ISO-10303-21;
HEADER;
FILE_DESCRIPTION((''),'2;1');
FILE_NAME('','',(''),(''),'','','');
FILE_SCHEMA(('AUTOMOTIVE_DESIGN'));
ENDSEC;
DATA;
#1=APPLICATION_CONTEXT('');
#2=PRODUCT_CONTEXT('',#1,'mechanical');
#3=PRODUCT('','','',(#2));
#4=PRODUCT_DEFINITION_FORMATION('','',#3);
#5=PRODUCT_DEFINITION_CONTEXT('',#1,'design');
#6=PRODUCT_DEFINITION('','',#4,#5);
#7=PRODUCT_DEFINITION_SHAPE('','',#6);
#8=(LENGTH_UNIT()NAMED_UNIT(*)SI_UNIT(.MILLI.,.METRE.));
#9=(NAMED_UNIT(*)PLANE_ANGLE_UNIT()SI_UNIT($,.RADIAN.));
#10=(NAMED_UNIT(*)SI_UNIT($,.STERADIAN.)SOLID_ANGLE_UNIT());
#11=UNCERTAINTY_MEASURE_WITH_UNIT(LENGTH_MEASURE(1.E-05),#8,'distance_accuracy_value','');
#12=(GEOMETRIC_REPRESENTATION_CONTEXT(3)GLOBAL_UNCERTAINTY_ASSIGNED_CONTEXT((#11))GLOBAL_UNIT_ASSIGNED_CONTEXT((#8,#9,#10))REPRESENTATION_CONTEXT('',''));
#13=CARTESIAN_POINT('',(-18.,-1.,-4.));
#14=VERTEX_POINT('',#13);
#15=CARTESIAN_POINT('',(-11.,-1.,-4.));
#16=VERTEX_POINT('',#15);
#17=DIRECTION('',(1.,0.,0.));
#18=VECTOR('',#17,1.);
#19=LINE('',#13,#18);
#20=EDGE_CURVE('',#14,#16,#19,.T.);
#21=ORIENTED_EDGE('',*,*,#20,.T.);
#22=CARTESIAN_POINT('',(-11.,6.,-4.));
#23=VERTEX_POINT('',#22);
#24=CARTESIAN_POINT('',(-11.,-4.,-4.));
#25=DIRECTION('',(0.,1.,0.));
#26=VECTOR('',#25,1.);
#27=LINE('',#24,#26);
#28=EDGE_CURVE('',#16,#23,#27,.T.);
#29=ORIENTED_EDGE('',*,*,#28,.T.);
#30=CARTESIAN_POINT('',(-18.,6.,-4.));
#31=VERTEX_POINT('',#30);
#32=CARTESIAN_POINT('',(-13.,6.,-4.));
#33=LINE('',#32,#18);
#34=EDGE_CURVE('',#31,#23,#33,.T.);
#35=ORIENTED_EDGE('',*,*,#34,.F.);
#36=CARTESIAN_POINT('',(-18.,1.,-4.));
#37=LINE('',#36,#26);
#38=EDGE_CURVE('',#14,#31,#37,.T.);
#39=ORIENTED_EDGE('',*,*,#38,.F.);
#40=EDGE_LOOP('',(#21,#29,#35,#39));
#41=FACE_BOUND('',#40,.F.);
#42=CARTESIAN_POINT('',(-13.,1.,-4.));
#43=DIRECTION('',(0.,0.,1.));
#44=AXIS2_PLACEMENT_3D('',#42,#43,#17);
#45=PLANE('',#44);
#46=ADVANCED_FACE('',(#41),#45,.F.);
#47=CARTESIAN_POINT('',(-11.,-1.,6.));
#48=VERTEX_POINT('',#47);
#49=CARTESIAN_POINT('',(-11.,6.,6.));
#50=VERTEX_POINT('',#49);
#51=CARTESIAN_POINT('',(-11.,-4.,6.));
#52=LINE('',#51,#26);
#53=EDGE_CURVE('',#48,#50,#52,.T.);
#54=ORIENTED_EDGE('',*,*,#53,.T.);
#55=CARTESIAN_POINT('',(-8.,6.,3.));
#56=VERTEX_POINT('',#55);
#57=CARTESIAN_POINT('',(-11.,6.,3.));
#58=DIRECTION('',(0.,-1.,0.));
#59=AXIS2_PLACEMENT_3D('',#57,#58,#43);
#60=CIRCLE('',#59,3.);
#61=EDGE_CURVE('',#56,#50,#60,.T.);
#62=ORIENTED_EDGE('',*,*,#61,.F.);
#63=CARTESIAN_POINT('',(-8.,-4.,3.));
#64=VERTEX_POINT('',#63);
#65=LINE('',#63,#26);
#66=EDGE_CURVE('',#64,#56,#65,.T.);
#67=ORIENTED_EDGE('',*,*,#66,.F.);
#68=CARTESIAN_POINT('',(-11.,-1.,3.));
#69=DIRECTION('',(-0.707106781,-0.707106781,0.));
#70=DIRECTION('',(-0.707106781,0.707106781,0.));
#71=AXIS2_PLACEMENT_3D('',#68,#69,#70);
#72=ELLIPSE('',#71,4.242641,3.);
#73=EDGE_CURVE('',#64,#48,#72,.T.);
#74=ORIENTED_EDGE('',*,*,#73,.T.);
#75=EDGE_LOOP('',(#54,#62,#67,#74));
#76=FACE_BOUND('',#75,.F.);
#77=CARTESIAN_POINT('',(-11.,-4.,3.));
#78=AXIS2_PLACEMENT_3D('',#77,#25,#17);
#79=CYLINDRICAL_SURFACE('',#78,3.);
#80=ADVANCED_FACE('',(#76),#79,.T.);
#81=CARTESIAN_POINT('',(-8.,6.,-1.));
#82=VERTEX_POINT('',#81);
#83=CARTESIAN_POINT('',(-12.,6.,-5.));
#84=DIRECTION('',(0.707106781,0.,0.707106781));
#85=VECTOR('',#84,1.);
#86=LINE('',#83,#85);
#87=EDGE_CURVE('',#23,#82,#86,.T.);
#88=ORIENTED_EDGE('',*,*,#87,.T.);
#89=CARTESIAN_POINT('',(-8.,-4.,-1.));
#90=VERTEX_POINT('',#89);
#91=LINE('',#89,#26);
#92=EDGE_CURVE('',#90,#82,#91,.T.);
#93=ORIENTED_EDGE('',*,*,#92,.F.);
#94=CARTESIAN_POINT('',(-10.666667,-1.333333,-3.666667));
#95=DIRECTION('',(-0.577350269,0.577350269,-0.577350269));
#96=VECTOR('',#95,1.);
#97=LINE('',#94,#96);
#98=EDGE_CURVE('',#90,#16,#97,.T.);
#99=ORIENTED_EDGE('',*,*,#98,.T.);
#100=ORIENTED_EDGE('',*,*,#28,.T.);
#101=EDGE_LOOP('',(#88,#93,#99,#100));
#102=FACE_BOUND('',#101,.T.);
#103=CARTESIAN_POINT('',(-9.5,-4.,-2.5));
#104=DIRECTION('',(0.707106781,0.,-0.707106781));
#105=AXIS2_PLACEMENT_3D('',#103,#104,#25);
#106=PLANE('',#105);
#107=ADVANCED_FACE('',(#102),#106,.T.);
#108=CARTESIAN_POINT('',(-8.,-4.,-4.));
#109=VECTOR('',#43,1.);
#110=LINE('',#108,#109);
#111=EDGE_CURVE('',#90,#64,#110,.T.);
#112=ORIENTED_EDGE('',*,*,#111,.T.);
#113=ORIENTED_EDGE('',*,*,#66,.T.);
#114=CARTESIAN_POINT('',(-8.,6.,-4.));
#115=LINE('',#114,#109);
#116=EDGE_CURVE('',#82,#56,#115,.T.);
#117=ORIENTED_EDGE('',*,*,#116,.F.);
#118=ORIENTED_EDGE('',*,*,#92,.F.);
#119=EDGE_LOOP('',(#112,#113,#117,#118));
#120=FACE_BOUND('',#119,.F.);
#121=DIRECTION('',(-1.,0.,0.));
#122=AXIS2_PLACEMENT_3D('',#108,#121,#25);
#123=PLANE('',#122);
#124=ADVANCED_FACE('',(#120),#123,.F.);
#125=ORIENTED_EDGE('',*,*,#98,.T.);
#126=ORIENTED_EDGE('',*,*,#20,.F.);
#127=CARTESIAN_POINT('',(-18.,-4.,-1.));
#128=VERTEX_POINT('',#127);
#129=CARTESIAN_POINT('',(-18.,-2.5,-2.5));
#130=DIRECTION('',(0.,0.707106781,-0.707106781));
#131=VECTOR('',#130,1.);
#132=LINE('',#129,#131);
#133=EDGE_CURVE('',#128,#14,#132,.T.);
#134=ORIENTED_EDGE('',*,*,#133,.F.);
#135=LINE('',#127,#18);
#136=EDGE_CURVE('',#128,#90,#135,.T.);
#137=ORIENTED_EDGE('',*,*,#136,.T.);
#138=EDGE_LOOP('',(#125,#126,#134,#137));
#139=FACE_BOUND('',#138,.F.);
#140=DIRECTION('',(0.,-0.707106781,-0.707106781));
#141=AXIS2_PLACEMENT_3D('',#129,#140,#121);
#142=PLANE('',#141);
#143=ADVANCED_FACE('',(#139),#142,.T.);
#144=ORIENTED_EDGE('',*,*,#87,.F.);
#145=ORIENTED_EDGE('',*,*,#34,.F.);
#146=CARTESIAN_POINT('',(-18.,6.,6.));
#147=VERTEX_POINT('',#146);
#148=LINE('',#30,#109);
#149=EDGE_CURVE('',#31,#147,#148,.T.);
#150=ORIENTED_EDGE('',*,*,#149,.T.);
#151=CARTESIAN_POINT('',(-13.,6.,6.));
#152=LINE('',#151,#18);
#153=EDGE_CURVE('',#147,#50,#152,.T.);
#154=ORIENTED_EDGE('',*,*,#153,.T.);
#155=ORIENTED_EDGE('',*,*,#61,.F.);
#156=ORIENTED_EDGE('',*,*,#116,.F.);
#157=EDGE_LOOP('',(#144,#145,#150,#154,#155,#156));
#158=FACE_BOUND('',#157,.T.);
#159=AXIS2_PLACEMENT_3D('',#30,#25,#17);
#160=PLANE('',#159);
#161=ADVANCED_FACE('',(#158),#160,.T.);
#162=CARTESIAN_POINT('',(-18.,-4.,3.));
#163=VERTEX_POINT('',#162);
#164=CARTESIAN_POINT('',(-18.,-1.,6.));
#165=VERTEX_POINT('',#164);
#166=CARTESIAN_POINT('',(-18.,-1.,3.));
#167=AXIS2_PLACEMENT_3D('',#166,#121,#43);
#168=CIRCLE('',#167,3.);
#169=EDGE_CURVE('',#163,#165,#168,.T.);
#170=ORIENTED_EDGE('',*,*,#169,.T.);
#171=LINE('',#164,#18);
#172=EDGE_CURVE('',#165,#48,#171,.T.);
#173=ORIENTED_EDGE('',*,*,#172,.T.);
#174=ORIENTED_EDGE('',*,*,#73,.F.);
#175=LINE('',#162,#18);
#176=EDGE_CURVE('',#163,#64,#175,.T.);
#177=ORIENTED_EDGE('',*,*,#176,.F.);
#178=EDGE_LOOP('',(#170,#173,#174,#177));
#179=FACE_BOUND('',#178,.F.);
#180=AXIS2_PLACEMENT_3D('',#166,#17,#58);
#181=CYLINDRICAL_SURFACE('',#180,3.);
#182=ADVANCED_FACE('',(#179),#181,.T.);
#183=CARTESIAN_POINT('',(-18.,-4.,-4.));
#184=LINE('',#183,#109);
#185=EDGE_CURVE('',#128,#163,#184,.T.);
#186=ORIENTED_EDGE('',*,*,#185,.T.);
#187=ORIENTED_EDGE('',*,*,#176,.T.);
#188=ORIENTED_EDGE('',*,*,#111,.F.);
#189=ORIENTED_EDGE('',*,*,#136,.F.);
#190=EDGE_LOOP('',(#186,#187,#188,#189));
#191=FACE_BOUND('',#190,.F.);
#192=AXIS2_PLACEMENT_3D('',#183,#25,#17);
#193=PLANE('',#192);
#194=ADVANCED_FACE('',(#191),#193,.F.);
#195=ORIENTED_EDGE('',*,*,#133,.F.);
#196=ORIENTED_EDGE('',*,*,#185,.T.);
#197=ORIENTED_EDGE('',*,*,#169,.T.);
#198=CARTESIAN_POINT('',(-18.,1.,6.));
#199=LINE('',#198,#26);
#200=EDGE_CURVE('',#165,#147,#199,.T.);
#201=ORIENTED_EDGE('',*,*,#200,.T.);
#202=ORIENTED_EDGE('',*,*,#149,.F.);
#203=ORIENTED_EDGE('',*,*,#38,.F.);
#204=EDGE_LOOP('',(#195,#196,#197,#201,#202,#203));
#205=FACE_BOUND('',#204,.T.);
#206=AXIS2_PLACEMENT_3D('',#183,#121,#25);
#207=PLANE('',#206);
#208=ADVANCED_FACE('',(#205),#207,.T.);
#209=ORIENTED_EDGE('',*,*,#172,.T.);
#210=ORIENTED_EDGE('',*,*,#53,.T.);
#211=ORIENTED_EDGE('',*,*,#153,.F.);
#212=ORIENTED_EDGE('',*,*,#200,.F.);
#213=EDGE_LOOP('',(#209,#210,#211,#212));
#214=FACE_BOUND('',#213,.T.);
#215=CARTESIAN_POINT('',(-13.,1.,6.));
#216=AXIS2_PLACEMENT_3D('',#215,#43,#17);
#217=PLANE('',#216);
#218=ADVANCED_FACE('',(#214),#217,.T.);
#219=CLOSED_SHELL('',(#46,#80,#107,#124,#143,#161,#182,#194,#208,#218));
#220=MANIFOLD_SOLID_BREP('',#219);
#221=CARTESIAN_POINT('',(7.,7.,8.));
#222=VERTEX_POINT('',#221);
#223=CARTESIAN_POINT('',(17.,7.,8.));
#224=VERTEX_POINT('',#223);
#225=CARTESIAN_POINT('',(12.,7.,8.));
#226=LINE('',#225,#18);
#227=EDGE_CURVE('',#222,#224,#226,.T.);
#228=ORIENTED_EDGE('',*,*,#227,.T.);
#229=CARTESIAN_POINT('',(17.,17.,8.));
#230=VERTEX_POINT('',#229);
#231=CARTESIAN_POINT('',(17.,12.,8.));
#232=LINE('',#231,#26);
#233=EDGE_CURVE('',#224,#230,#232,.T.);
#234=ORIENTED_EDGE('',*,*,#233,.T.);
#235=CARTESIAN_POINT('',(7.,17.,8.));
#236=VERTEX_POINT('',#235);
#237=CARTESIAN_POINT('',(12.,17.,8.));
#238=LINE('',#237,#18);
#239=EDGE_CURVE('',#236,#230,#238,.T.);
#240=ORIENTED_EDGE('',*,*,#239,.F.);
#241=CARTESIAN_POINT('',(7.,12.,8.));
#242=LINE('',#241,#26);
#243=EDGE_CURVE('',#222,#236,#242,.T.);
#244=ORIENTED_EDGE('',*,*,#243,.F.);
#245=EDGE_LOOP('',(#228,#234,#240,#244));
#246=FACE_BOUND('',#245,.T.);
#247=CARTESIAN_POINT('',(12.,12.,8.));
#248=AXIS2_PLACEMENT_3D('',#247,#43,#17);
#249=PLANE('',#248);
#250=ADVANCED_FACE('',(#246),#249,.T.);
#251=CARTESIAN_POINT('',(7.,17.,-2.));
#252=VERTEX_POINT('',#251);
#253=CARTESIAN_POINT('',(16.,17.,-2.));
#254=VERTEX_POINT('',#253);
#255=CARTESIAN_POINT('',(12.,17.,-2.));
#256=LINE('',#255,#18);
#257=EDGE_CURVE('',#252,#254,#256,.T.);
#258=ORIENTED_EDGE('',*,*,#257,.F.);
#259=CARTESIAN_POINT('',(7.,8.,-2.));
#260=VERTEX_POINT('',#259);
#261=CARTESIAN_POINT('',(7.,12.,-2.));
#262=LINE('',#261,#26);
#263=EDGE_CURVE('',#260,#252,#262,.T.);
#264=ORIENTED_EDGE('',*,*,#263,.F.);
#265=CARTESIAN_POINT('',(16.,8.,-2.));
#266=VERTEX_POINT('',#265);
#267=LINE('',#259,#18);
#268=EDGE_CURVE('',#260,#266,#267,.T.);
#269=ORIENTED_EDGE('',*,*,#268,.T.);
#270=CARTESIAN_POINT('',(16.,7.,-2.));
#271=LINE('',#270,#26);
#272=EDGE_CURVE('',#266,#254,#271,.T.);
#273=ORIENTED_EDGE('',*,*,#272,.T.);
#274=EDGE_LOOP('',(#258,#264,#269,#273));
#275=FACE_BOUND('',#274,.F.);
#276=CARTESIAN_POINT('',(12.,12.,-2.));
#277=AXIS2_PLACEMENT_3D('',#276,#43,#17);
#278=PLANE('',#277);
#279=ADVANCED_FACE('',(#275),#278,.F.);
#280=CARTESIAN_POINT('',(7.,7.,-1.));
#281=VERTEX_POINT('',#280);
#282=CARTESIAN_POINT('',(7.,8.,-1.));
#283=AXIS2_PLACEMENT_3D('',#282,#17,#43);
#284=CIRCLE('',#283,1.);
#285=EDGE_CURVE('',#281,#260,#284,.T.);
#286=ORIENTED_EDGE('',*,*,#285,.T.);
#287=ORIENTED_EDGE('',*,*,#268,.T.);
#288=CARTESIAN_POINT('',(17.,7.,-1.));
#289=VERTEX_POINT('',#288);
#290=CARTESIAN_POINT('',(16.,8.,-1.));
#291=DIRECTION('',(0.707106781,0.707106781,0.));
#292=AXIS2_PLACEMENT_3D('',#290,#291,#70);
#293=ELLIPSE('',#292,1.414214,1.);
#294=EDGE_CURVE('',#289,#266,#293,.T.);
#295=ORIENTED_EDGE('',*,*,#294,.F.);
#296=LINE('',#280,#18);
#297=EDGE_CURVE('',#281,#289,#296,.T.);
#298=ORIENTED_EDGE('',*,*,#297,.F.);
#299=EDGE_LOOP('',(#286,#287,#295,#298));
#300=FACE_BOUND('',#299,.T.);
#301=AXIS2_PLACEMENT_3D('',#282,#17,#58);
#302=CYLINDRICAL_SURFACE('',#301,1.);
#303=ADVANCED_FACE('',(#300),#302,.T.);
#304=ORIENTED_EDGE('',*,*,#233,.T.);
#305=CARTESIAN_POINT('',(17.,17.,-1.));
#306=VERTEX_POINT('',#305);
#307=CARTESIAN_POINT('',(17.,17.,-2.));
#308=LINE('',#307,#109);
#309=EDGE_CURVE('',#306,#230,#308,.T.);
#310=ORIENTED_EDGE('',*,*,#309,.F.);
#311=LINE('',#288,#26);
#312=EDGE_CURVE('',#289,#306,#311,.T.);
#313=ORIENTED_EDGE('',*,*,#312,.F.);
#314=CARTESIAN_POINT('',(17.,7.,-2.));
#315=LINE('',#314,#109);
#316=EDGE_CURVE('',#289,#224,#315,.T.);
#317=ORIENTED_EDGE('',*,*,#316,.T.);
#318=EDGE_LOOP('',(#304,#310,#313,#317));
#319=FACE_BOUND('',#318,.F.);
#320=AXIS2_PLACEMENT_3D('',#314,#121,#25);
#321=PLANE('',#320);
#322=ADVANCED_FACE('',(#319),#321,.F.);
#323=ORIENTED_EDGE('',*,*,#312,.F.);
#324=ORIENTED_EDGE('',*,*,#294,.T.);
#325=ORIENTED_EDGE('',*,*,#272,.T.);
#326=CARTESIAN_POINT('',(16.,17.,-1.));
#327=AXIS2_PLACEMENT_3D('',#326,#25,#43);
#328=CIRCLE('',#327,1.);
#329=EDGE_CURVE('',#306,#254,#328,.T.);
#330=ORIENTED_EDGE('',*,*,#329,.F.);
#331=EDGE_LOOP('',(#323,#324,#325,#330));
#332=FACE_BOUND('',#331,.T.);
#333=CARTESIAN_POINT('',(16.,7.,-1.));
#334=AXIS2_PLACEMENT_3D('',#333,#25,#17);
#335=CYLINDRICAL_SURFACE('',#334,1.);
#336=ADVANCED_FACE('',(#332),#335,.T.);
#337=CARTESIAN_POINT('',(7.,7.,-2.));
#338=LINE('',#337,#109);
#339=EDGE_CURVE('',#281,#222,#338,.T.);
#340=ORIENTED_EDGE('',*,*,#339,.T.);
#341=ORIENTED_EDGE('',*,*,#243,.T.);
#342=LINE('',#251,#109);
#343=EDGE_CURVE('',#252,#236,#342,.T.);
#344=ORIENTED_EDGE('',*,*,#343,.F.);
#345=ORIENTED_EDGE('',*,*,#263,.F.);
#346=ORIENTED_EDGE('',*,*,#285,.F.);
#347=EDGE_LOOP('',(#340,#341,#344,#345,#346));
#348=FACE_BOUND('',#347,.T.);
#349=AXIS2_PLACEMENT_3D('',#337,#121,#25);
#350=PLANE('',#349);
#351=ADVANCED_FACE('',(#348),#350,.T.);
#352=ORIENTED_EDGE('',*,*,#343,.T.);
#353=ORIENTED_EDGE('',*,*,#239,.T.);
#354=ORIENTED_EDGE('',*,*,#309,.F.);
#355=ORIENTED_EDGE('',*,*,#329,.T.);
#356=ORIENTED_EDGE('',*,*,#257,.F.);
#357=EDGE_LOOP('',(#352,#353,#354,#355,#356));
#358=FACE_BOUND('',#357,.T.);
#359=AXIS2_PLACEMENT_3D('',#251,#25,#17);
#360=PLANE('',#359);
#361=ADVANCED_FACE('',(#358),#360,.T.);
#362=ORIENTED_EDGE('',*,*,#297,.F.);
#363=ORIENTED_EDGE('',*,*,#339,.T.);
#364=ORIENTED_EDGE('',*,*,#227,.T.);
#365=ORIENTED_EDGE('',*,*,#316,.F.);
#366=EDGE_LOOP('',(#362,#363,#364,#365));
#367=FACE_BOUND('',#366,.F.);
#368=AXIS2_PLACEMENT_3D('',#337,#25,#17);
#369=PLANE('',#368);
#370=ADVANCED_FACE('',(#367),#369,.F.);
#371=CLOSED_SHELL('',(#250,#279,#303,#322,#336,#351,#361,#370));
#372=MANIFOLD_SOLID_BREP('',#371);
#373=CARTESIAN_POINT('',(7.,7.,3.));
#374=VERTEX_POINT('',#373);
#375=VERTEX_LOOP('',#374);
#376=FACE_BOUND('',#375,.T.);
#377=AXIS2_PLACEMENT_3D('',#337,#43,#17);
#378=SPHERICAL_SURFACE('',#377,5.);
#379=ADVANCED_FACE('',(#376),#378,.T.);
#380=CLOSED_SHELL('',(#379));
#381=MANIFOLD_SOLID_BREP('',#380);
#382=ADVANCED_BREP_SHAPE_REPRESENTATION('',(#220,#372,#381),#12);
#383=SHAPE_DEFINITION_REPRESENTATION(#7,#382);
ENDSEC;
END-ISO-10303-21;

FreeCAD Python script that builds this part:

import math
import FreeCAD as App
import Part
import Sketcher
Q = App.Units.Quantity


def edges_at(feature, points):
    """Names of the edges that pass closest to the given points."""
    edges = feature.Shape.Edges
    near = lambda p: min(range(len(edges)), key=lambda i: edges[i].distToShape(Part.Vertex(*p))[0])
    return sorted({f"Edge{near(p) + 1}" for p in points})


def add_polygon(sketch, points):
    """Adds a closed chain of lines whose ends are joined by coincident constraints."""
    first, n = sketch.GeometryCount, len(points)
    for a, b in zip(points, points[1:] + points[:1]):
        sketch.addGeometry(Part.LineSegment(App.Vector(*a, 0), App.Vector(*b, 0)), False)
    for i in range(n):
        sketch.addConstraint(Sketcher.Constraint("Coincident", first + i, 2, first + (i + 1) % n, 1))

doc = App.newDocument("Part")
params = doc.addObject("Spreadsheet::Sheet", "Params")
for row, (alias, value) in enumerate([
    ("sketch1_radius", "5 mm"),
    ("revolution_angle", "360 deg"),
    ("sketch2_width", "10 mm"),
    ("pad1_length", "10 mm"),
    ("fillet_radius", "3 mm"),
    ("chamfer_size", "3 mm"),
    ("sketch3_width", "10 mm"),
    ("pad2_length", "10 mm"),
    ("fillet2_radius", "1 mm"),
], start=1):
    params.set(f"A{row}", alias)
    params.set(f"B{row}", "=" + value)
    params.setAlias(f"B{row}", alias)

body = doc.addObject("PartDesign::Body", "Body")

sketch1 = body.newObject("Sketcher::SketchObject", "Sketch")
sketch1.AttachmentSupport = (doc.getObject("XZ_Plane"), [""])
sketch1.MapMode = "FlatFace"
sketch1.AttachmentOffset = App.Placement(App.Vector(0, 0, -7), App.Rotation())
sketch1.addGeometry([
    Part.ArcOfCircle(Part.Circle(App.Vector(7, -2, 0), App.Vector(0, 0, 1), 5), math.radians(-90), math.radians(90)),
    Part.LineSegment(App.Vector(7, 3, 0), App.Vector(7, -7, 0)),
], False)
sketch1.addGeometry(Part.LineSegment(App.Vector(7, -7, 0), App.Vector(7, 3, 0)), True)
sketch1.addConstraint([
    Sketcher.Constraint("Coincident", 0, 1, 1, 2),
    Sketcher.Constraint("Coincident", 1, 1, 0, 2),
    Sketcher.Constraint("Vertical", 1),
    Sketcher.Constraint("Vertical", 2),
    Sketcher.Constraint("Coincident", 2, 1, 0, 1),
    Sketcher.Constraint("Equal", 1, 2),
    Sketcher.Constraint("Radius", 0, Q("5 mm")),
    Sketcher.Constraint("DistanceX", -1, 1, 0, 3, Q("7 mm")),
    Sketcher.Constraint("DistanceY", 0, 3, -1, 1, Q("2 mm")),
    Sketcher.Constraint("DistanceX", -1, 1, 0, 1, Q("7 mm")),
])
sketch1.setExpression("Constraints[6]", "Params.sketch1_radius")
revolution = body.newObject("PartDesign::Revolution", "Revolution")
revolution.Profile = sketch1
revolution.ReferenceAxis = (sketch1, ["Axis0"])
revolution.setExpression("Angle", "Params.revolution_angle")
body2 = doc.addObject("PartDesign::Body", "Body001")

sketch2 = body2.newObject("Sketcher::SketchObject", "Sketch001")
sketch2.AttachmentSupport = (doc.getObject("XY_Plane001"), [""])
sketch2.MapMode = "FlatFace"
sketch2.AttachmentOffset = App.Placement(App.Vector(0, 0, -4), App.Rotation())
add_polygon(sketch2, [(-18, 6), (-18, -4), (-8, -4), (-8, 6)])
sketch2.addConstraint([
    Sketcher.Constraint("Vertical", 0),
    Sketcher.Constraint("Horizontal", 1),
    Sketcher.Constraint("Vertical", 2),
    Sketcher.Constraint("Horizontal", 3),
    Sketcher.Constraint("Equal", 3, 0),
    Sketcher.Constraint("DistanceX", 1, 1, 1, 2, Q("10 mm")),
    Sketcher.Constraint("DistanceX", 0, 2, -1, 1, Q("18 mm")),
    Sketcher.Constraint("DistanceY", 0, 2, -1, 1, Q("4 mm")),
])
sketch2.setExpression("Constraints[9]", "Params.sketch2_width")
pad1 = body2.newObject("PartDesign::Pad", "Pad")
pad1.Profile = sketch2
pad1.setExpression("Length", "Params.pad1_length")
doc.recompute()

fillet = body2.newObject("PartDesign::Fillet", "Fillet")
fillet.Base = (pad1, edges_at(pad1, [(-8, 1, 6), (-13, -4, 6)]))
fillet.setExpression("Radius", "Params.fillet_radius")
doc.recompute()

chamfer = body2.newObject("PartDesign::Chamfer", "Chamfer")
chamfer.Base = (fillet, edges_at(fillet, [(-13, -4, -4), (-8, 1, -4)]))
chamfer.setExpression("Size", "Params.chamfer_size")
body3 = doc.addObject("PartDesign::Body", "Body002")

sketch3 = body3.newObject("Sketcher::SketchObject", "Sketch002")
sketch3.AttachmentSupport = (doc.getObject("XY_Plane002"), [""])
sketch3.MapMode = "FlatFace"
sketch3.AttachmentOffset = App.Placement(App.Vector(0, 0, -2), App.Rotation())
add_polygon(sketch3, [(7, 17), (7, 7), (17, 7), (17, 17)])
sketch3.addConstraint([
    Sketcher.Constraint("Vertical", 0),
    Sketcher.Constraint("Horizontal", 1),
    Sketcher.Constraint("Vertical", 2),
    Sketcher.Constraint("Horizontal", 3),
    Sketcher.Constraint("Equal", 3, 0),
    Sketcher.Constraint("DistanceX", 1, 1, 1, 2, Q("10 mm")),
    Sketcher.Constraint("DistanceX", -1, 1, 0, 2, Q("7 mm")),
    Sketcher.Constraint("DistanceY", -1, 1, 0, 2, Q("7 mm")),
])
sketch3.setExpression("Constraints[9]", "Params.sketch3_width")
pad2 = body3.newObject("PartDesign::Pad", "Pad001")
pad2.Profile = sketch3
pad2.setExpression("Length", "Params.pad2_length")
doc.recompute()

fillet2 = body3.newObject("PartDesign::Fillet", "Fillet001")
fillet2.Base = (pad2, edges_at(pad2, [(17, 12, -2), (12, 7, -2)]))
fillet2.setExpression("Radius", "Params.fillet2_radius")

doc.recompute()
